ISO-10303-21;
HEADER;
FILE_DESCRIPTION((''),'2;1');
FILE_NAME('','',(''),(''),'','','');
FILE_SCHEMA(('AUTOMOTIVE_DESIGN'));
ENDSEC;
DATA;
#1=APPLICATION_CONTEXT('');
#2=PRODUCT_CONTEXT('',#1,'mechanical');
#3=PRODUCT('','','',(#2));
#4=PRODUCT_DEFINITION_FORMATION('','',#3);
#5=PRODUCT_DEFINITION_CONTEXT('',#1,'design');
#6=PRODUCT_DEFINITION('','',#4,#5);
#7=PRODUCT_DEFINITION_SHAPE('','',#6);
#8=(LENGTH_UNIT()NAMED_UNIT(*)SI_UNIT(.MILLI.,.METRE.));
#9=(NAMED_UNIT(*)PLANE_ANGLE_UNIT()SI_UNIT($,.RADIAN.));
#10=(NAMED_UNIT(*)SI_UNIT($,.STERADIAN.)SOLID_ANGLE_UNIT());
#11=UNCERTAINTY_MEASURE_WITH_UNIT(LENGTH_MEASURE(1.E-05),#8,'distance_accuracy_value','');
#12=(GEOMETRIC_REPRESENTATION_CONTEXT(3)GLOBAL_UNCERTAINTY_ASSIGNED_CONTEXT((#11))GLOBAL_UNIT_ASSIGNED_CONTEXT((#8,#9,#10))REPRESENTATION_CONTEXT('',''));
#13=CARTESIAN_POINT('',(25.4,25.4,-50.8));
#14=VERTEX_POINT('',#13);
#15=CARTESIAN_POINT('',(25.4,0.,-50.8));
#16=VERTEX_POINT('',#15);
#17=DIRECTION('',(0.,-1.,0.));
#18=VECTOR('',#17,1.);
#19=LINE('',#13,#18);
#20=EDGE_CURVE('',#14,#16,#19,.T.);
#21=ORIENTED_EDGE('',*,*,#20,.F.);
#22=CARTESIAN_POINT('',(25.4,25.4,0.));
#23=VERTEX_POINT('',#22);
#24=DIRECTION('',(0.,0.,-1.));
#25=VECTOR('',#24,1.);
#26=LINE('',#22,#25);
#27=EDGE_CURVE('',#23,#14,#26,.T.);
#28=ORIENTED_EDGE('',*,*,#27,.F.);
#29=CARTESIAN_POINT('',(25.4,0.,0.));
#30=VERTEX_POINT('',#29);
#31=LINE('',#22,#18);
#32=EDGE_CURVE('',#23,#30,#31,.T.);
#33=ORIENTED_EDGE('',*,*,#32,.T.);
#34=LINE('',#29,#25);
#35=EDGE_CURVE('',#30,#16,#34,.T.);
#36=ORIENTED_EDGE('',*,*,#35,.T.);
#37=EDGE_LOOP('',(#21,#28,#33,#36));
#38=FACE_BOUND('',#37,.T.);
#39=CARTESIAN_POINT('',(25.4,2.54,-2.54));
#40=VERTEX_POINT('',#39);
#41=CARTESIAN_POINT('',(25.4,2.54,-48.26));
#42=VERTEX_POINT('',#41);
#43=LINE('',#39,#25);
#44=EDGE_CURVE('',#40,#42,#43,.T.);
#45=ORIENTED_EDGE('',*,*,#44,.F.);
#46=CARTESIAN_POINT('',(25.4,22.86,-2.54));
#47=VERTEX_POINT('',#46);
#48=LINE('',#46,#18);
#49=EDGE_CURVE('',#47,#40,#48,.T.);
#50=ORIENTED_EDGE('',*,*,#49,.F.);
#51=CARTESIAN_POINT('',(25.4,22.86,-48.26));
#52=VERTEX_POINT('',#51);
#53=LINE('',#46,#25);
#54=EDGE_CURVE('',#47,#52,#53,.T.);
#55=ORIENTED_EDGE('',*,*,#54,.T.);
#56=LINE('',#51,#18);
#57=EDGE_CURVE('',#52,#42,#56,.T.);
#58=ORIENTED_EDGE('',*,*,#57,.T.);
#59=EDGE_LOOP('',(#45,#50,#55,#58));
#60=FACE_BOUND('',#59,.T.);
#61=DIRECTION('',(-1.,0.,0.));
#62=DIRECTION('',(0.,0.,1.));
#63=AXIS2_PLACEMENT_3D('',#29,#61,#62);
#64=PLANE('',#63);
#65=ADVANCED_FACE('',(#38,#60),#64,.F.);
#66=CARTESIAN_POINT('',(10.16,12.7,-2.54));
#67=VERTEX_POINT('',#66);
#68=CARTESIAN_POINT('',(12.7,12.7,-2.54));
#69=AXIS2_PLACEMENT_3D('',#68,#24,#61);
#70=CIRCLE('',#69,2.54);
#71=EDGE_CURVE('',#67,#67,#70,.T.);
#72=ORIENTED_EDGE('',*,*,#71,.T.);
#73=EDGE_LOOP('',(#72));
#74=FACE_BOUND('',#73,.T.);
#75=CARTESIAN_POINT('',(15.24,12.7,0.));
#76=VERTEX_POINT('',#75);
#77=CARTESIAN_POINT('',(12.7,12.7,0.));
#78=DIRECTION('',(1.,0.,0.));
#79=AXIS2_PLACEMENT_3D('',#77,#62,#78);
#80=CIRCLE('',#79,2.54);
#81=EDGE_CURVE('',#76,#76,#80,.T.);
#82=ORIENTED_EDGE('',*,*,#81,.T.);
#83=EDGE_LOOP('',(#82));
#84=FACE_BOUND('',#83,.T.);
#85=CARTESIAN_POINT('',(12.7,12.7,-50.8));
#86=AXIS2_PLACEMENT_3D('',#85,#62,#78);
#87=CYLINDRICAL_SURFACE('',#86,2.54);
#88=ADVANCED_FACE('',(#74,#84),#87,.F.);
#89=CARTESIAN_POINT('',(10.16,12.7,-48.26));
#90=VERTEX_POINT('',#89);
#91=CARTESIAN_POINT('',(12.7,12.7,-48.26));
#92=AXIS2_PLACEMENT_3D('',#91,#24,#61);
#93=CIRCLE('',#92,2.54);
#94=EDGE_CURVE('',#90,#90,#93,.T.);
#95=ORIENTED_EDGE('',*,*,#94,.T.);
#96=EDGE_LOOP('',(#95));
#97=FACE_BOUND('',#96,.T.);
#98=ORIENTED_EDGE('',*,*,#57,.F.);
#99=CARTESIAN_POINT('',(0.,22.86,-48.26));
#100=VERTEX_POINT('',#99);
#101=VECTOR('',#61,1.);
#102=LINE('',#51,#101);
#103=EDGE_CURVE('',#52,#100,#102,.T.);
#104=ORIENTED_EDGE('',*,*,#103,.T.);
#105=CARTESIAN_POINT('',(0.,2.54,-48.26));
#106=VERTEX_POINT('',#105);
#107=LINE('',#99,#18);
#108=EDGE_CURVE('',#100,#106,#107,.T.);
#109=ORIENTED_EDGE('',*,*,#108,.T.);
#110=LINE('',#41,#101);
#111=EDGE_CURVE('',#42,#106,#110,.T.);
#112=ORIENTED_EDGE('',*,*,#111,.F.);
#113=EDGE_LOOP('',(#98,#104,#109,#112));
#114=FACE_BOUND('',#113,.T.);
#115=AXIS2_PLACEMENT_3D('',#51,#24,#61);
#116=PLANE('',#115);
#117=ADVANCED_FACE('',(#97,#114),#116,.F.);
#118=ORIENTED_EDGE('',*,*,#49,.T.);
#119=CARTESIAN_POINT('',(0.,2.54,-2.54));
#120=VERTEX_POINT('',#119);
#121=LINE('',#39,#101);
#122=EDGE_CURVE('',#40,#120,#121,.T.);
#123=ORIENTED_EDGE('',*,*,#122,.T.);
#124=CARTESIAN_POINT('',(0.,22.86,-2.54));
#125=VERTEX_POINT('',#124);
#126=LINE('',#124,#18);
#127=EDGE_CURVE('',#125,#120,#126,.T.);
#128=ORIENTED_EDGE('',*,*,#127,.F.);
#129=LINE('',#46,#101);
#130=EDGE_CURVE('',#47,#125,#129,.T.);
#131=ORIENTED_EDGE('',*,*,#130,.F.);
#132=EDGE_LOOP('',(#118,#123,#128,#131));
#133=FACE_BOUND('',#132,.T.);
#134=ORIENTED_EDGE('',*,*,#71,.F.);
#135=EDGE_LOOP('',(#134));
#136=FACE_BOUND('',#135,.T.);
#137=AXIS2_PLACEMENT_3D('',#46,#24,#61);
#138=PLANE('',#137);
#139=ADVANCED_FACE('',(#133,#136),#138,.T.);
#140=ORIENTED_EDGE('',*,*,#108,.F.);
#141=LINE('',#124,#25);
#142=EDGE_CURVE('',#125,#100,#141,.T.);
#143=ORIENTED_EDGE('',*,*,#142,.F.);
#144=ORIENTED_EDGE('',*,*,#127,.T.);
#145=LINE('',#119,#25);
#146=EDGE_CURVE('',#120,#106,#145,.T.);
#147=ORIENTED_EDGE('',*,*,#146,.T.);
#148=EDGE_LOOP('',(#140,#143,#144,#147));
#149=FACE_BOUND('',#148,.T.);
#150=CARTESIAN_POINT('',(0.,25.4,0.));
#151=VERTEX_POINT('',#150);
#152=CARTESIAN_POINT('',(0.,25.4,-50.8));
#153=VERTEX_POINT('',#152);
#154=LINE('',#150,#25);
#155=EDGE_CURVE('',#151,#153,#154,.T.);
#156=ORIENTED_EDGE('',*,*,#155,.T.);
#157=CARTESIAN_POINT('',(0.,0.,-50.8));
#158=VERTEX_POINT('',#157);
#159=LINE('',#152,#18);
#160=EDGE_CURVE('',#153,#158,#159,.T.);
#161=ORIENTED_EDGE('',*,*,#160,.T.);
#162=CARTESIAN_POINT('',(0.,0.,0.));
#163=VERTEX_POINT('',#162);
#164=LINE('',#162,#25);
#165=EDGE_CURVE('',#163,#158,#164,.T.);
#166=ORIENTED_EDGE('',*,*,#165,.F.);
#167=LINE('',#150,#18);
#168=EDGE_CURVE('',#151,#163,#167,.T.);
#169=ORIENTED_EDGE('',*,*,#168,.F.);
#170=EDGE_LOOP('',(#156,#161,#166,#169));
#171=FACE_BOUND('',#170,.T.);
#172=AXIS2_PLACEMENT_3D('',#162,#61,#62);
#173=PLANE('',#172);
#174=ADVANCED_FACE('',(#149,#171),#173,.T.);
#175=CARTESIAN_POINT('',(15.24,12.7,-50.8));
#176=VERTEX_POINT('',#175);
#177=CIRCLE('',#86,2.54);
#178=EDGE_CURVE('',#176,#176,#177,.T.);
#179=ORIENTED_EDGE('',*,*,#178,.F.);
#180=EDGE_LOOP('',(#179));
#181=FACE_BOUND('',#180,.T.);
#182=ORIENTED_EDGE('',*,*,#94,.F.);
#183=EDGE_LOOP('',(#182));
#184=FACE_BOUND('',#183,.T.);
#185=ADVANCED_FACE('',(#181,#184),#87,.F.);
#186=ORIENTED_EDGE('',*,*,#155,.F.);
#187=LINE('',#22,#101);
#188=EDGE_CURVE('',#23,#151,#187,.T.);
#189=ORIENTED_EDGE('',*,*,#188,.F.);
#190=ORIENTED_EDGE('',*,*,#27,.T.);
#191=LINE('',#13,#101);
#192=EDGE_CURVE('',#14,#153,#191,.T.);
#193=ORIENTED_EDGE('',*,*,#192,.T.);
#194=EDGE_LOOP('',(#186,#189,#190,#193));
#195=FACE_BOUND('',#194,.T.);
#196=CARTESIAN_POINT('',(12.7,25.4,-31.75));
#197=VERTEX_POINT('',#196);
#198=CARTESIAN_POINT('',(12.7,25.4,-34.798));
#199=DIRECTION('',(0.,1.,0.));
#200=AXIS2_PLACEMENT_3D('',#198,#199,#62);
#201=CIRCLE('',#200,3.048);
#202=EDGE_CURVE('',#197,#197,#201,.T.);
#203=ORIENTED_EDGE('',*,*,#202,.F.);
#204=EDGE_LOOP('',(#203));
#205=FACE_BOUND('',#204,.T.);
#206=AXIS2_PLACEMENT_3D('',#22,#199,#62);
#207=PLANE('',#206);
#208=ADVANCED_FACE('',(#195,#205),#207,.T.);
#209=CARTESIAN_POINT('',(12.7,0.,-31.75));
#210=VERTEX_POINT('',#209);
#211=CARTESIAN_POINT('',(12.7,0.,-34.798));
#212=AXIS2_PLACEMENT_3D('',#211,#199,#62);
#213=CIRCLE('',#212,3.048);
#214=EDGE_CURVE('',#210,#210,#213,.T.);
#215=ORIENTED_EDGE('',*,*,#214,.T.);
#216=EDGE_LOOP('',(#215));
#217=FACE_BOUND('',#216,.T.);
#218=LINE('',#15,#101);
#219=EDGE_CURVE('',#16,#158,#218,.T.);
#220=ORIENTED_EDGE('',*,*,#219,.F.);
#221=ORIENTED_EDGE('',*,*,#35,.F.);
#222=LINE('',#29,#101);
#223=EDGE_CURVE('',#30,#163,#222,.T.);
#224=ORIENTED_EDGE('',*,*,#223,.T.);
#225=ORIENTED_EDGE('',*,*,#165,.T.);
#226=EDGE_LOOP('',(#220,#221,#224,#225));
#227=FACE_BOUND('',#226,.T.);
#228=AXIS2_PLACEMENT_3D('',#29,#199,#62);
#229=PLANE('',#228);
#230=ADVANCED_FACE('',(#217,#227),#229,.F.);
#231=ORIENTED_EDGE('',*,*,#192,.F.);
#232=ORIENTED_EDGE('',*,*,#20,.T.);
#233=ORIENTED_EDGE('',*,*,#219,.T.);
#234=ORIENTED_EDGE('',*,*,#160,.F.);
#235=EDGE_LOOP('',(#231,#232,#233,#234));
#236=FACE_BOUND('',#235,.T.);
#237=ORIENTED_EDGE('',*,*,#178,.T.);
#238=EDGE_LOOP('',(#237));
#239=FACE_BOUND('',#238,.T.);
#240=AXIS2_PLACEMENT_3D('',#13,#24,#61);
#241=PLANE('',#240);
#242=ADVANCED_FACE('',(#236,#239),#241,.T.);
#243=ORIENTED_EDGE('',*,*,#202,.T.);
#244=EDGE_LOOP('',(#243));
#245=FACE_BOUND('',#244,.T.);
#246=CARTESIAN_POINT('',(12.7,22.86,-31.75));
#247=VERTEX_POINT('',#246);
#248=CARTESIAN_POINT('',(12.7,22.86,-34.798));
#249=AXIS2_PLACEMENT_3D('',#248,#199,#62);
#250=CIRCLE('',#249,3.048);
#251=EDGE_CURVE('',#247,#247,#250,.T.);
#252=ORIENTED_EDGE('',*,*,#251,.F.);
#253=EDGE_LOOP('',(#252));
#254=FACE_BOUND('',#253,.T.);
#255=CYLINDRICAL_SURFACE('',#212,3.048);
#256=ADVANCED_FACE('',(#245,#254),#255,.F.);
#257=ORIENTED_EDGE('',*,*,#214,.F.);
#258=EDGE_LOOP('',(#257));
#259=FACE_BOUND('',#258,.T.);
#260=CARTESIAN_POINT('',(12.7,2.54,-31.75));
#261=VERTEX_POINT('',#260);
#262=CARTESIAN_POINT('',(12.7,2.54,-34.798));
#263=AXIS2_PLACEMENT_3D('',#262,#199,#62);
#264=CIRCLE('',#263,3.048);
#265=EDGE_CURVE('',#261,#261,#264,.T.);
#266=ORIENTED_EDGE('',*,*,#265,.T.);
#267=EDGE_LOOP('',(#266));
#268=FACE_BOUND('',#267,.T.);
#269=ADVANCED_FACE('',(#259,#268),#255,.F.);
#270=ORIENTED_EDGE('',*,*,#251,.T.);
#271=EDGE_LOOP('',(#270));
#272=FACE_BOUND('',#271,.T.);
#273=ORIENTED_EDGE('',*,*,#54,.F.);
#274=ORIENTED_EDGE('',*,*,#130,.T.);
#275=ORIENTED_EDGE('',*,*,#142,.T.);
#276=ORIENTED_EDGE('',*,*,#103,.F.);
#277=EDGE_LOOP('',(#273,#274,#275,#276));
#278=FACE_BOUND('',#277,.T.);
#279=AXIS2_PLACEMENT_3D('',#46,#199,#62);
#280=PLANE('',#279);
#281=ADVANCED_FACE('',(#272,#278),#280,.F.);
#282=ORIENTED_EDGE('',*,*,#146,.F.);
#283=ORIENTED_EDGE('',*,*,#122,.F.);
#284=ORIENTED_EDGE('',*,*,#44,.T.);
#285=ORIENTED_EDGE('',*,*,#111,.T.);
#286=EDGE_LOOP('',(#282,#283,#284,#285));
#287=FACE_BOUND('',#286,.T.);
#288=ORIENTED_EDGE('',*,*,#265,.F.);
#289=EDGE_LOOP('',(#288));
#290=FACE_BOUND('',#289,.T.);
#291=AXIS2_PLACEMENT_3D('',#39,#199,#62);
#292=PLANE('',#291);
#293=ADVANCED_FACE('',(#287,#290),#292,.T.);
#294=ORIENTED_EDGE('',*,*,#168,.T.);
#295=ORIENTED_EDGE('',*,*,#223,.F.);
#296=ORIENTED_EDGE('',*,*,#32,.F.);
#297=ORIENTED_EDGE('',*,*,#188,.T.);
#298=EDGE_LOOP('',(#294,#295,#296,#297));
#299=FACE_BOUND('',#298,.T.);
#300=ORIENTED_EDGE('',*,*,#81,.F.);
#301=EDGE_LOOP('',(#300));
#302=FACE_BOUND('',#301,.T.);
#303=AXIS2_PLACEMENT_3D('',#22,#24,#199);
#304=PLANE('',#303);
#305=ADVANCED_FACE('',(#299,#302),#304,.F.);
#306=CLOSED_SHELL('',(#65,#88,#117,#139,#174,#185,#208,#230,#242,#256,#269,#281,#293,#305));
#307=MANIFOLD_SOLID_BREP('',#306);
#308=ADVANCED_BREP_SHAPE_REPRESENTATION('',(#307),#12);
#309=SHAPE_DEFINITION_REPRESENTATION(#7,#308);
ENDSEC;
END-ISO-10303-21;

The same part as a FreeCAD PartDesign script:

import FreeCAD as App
import Part
import Sketcher
from FreeCAD import Vector
Q = App.Units.Quantity


def add_polygon(sketch, points):
    """Adds a closed chain of lines whose ends are joined by coincident constraints."""
    first, n = sketch.GeometryCount, len(points)
    for a, b in zip(points, points[1:] + points[:1]):
        sketch.addGeometry(Part.LineSegment(App.Vector(*a, 0), App.Vector(*b, 0)), False)
    for i in range(n):
        sketch.addConstraint(Sketcher.Constraint("Coincident", first + i, 2, first + (i + 1) % n, 1))

doc = App.newDocument("Part")
body = doc.addObject("PartDesign::Body", "Body")

# Sketch on YZ plane
sketch1 = body.newObject("Sketcher::SketchObject", "Sketch")
sketch1.AttachmentSupport = (doc.getObject("YZ_Plane"), [""])
sketch1.MapMode = "FlatFace"
add_polygon(sketch1, [(25.4, 0), (0, 0), (0, -50.8), (25.4, -50.8)])  # lines 0-3
add_polygon(sketch1, [(2.54, -48.26), (2.54, -2.54), (22.86, -2.54), (22.86, -48.26)])  # lines 4-7
sketch1.addConstraint([
    Sketcher.Constraint("Horizontal", 0),
    Sketcher.Constraint("Vertical", 1),
    Sketcher.Constraint("Horizontal", 2),
    Sketcher.Constraint("Vertical", 3),
    Sketcher.Constraint("Vertical", 4),
    Sketcher.Constraint("Horizontal", 5),
    Sketcher.Constraint("Vertical", 6),
    Sketcher.Constraint("Horizontal", 7),
    Sketcher.Constraint("Coincident", 0, 2, -1, 1),
    Sketcher.Constraint("DistanceX", 0, 2, 0, 1, Q("1 in")),
    Sketcher.Constraint("DistanceY", 1, 2, 1, 1, Q("2 in")),
    Sketcher.Constraint("DistanceX", 5, 1, 5, 2, Q("0.8 in")),
    Sketcher.Constraint("DistanceY", 4, 1, 4, 2, Q("1.8 in")),
    Sketcher.Constraint("DistanceX", -1, 1, 4, 2, Q("0.1 in")),
    Sketcher.Constraint("DistanceY", 4, 2, -1, 1, Q("0.1 in")),
])
pad1 = body.newObject("PartDesign::Pad", "Pad")
pad1.Profile = sketch1
pad1.Length = Q("1 in")

# Sketch on XZ plane
sketch2 = body.newObject("Sketcher::SketchObject", "Sketch001")
sketch2.AttachmentSupport = (doc.getObject("XZ_Plane"), [""])
sketch2.MapMode = "FlatFace"
sketch2.AttachmentOffset = App.Placement(Vector(0, 0, -1 * 25.4), App.Rotation())
sketch2.addGeometry(Part.Circle(Vector(12.7, -34.798, 0), Vector(0, 0, 1), 3.048), False)
sketch2.addConstraint([
    Sketcher.Constraint("Diameter", 0, Q("0.24 in")),
    Sketcher.Constraint("DistanceX", -1, 1, 0, 3, Q("0.5 in")),
    Sketcher.Constraint("DistanceY", 0, 3, -1, 1, Q("1.37 in")),
])
pocket1 = body.newObject("PartDesign::Pocket", "Pocket")
pocket1.Profile = sketch2
pocket1.Type = "ThroughAll"
pocket1.Reversed = True

# Sketch on XY plane
sketch3 = body.newObject("Sketcher::SketchObject", "Sketch002")
sketch3.AttachmentSupport = (doc.getObject("XY_Plane"), [""])
sketch3.MapMode = "FlatFace"
sketch3.addGeometry(Part.Circle(Vector(12.7, 12.7, 0), Vector(0, 0, 1), 2.54), False)
sketch3.addConstraint([
    Sketcher.Constraint("Diameter", 0, Q("0.2 in")),
    Sketcher.Constraint("DistanceX", -1, 1, 0, 3, Q("0.5 in")),
    Sketcher.Constraint("DistanceY", -1, 1, 0, 3, Q("0.5 in")),
])
pocket2 = body.newObject("PartDesign::Pocket", "Pocket001")
pocket2.Profile = sketch3
pocket2.Type = "ThroughAll"

doc.recompute()
